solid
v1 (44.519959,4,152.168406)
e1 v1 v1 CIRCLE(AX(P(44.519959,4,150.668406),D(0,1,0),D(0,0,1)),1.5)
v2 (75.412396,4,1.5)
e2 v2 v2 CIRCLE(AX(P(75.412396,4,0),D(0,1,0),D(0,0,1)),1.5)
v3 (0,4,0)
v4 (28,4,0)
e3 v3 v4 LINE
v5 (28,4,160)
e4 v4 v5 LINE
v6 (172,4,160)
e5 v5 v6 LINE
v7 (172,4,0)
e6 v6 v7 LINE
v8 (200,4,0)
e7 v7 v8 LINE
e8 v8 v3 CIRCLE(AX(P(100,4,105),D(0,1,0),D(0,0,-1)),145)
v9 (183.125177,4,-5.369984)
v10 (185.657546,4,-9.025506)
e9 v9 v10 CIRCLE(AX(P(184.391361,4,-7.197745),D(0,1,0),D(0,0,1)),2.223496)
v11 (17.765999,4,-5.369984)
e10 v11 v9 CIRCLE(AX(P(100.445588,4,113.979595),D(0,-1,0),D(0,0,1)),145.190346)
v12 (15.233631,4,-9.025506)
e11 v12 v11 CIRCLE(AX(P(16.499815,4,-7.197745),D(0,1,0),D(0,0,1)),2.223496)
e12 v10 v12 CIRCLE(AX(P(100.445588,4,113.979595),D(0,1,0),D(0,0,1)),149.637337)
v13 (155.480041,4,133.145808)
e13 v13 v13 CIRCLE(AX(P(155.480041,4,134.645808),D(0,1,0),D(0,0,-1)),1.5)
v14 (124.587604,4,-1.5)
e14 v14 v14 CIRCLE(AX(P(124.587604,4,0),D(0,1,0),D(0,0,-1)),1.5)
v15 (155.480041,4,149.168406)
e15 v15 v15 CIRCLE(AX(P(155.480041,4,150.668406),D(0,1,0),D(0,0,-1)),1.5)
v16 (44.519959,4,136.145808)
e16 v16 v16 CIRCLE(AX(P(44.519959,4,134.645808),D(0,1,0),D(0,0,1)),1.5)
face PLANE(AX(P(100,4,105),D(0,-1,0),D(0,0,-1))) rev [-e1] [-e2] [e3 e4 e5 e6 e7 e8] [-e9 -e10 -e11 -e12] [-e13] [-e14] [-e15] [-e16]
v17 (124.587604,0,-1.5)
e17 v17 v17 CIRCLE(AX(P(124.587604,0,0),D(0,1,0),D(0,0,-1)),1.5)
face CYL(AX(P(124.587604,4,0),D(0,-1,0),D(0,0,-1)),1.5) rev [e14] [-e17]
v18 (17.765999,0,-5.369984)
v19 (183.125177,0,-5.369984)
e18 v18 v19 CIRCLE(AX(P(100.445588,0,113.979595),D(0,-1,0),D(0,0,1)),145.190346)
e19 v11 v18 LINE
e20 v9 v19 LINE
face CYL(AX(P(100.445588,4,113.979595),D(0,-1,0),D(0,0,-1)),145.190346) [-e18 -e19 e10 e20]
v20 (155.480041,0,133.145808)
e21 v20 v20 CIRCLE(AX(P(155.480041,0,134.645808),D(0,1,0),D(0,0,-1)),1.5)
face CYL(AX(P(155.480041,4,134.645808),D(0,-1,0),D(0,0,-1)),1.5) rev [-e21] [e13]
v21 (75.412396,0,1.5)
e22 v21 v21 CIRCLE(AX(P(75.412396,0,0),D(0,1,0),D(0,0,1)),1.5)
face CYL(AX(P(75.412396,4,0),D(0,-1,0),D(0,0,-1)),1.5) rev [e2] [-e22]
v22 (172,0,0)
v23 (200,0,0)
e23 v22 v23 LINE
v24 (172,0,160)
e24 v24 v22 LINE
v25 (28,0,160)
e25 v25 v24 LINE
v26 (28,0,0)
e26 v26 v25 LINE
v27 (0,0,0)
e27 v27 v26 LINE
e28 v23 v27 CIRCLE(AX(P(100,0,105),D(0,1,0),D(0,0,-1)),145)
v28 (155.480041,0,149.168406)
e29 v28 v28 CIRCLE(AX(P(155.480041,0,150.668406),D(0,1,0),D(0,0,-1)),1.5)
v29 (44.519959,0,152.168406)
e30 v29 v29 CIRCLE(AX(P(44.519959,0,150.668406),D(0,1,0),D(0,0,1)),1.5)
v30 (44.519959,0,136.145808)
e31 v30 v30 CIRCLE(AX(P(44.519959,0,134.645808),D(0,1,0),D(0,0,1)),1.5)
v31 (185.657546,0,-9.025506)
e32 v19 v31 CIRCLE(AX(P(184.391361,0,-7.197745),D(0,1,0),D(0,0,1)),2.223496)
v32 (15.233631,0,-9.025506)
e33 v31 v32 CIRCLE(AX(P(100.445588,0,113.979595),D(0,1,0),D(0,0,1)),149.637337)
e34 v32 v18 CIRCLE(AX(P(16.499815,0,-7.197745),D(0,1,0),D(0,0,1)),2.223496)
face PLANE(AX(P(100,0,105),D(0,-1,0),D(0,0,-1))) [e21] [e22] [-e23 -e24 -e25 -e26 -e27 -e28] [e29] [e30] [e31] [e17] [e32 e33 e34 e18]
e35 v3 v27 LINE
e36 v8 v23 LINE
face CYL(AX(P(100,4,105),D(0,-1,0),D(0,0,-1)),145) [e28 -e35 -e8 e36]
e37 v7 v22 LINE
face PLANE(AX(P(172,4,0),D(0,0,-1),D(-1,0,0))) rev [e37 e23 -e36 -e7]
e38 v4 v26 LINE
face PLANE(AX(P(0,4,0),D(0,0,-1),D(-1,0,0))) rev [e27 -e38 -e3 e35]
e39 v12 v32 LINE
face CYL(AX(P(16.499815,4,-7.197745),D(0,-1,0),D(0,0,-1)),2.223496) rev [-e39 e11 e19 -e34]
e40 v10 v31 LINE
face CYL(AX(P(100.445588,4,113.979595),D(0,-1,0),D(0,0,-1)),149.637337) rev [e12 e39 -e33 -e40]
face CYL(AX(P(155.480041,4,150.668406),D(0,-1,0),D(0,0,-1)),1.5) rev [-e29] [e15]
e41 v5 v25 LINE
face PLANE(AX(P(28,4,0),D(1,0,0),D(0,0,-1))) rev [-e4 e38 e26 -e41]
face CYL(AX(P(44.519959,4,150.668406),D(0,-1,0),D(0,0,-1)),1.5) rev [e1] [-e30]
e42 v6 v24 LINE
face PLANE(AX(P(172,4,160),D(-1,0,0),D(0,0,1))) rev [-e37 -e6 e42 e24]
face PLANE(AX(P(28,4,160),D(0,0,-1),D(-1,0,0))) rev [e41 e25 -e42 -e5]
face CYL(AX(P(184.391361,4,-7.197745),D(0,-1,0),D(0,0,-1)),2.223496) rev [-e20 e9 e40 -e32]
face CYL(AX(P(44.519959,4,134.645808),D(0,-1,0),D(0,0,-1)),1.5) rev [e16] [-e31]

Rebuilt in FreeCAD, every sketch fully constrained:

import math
import FreeCAD as App
import Part
import Sketcher

doc = App.newDocument("Part")
body = doc.addObject("PartDesign::Body", "Body")

# Sketch on XZ plane
sketch1 = doc.addObject("Sketcher::SketchObject", "Sketch")
body.addObject(sketch1)
sketch1.AttachmentSupport = (doc.XZ_Plane, [""])
sketch1.MapMode = "FlatFace"
sketch1.addGeometry([
    Part.LineSegment(App.Vector(0, 0, 0), App.Vector(28, 0, 0)),  # 0
    Part.LineSegment(App.Vector(28, 0, 0), App.Vector(28, 160, 0)),  # 1
    Part.LineSegment(App.Vector(28, 160, 0), App.Vector(172, 160, 0)),  # 2
    Part.LineSegment(App.Vector(172, 160, 0), App.Vector(172, 0, 0)),  # 3
    Part.LineSegment(App.Vector(172, 0, 0), App.Vector(200, 0, 0)),  # 4
    Part.ArcOfCircle(Part.Circle(App.Vector(100, 105, 0), App.Vector(0, 0, 1), 145), math.radians(-134), math.radians(-46)),  # 5
    Part.Circle(App.Vector(44.5, 150.7, 0), App.Vector(0, 0, 1), 1.5),  # 6
    Part.Circle(App.Vector(44.5, 134.6, 0), App.Vector(0, 0, 1), 1.5),  # 7
    Part.Circle(App.Vector(155.5, 150.7, 0), App.Vector(0, 0, 1), 1.5),  # 8
    Part.Circle(App.Vector(155.5, 134.6, 0), App.Vector(0, 0, 1), 1.5),  # 9
    Part.Circle(App.Vector(75.4, 0, 0), App.Vector(0, 0, 1), 1.5),  # 10
    Part.Circle(App.Vector(124.6, 0, 0), App.Vector(0, 0, 1), 1.5),  # 11
    Part.ArcOfCircle(Part.Circle(App.Vector(100.4, 114, 0), App.Vector(0, 0, 1), 149.6), math.radians(-125), math.radians(-55)),  # 12
    Part.ArcOfCircle(Part.Circle(App.Vector(184.4, -7.2, 0), App.Vector(0, 0, 1), 2.2), math.radians(-55), math.radians(125)),  # 13
    Part.ArcOfCircle(Part.Circle(App.Vector(100.4, 114, 0), App.Vector(0, 0, 1), 145.2), math.radians(-125), math.radians(-55)),  # 14
    Part.ArcOfCircle(Part.Circle(App.Vector(16.5, -7.2, 0), App.Vector(0, 0, 1), 2.2), math.radians(55), math.radians(235)),  # 15
], False)
sketch1.addConstraint([
    Sketcher.Constraint("Coincident", 0, 2, 1, 1),
    Sketcher.Constraint("Coincident", 1, 2, 2, 1),
    Sketcher.Constraint("Coincident", 2, 2, 3, 1),
    Sketcher.Constraint("Coincident", 3, 2, 4, 1),
    Sketcher.Constraint("Coincident", 4, 2, 5, 2),
    Sketcher.Constraint("Coincident", 5, 1, 0, 1),
    Sketcher.Constraint("Tangent", 12, 2, 13, 1),
    Sketcher.Constraint("Tangent", 13, 2, 14, 2),
    Sketcher.Constraint("Tangent", 14, 1, 15, 1),
    Sketcher.Constraint("Tangent", 15, 2, 12, 1),
    Sketcher.Constraint("Horizontal", 0),
    Sketcher.Constraint("Vertical", 1),
    Sketcher.Constraint("Horizontal", 2),
    Sketcher.Constraint("Vertical", 3),
    Sketcher.Constraint("Horizontal", 4),
    Sketcher.Constraint("Coincident", 5, 1, -1, 1),
    Sketcher.Constraint("Coincident", 14, 3, 12, 3),
    Sketcher.Constraint("Equal", 6, 7),
    Sketcher.Constraint("Equal", 7, 8),
    Sketcher.Constraint("Equal", 8, 9),
    Sketcher.Constraint("Equal", 9, 10),
    Sketcher.Constraint("Equal", 10, 11),
    Sketcher.Constraint("PointOnObject", 10, 3, -1),
    Sketcher.Constraint("PointOnObject", 11, 3, -1),
    Sketcher.Constraint("PointOnObject", 3, 2, -1),
    Sketcher.Constraint("Horizontal", 6, 3, 8, 3),
    Sketcher.Constraint("Horizontal", 7, 3, 9, 3),
    Sketcher.Constraint("Horizontal", 13, 3, 15, 3),
    Sketcher.Constraint("Vertical", 6, 3, 7, 3),
    Sketcher.Constraint("Vertical", 8, 3, 9, 3),
    Sketcher.Constraint("Equal", 0, 4),
    Sketcher.Constraint("Diameter", 6, 3.0),
    Sketcher.Constraint("Radius", 5, 145.0),
    Sketcher.Constraint("DistanceX", 0, 1, 0, 2, 28.0),
    Sketcher.Constraint("DistanceX", 2, 1, 2, 2, 144.0),
    Sketcher.Constraint("DistanceY", 1, 1, 1, 2, 160.0),
    Sketcher.Constraint("DistanceX", -1, 1, 14, 1, 17.765999),
    Sketcher.Constraint("Radius", 12, 149.637337),
    Sketcher.Constraint("Radius", 13, 2.223496),
    Sketcher.Constraint("DistanceX", -1, 1, 6, 3, 44.519959),
    Sketcher.Constraint("DistanceY", -1, 1, 7, 3, 134.645808),
    Sketcher.Constraint("DistanceX", -1, 1, 8, 3, 155.480041),
    Sketcher.Constraint("DistanceX", -1, 1, 12, 3, 100.445588),
    Sketcher.Constraint("DistanceX", 10, 3, 11, 3, 49.175209),
    Sketcher.Constraint("DistanceY", 12, 3, 8, 3, 36.68881),
    Sketcher.Constraint("DistanceX", 15, 3, 10, 3, 58.912581),
    Sketcher.Constraint("DistanceY", -1, 1, 6, 3, 150.668406),
])
pad1 = doc.addObject("PartDesign::Pad", "Pad")
body.addObject(pad1)
pad1.Profile = sketch1
pad1.Length = 4
pad1.Reversed = True

doc.recompute()
